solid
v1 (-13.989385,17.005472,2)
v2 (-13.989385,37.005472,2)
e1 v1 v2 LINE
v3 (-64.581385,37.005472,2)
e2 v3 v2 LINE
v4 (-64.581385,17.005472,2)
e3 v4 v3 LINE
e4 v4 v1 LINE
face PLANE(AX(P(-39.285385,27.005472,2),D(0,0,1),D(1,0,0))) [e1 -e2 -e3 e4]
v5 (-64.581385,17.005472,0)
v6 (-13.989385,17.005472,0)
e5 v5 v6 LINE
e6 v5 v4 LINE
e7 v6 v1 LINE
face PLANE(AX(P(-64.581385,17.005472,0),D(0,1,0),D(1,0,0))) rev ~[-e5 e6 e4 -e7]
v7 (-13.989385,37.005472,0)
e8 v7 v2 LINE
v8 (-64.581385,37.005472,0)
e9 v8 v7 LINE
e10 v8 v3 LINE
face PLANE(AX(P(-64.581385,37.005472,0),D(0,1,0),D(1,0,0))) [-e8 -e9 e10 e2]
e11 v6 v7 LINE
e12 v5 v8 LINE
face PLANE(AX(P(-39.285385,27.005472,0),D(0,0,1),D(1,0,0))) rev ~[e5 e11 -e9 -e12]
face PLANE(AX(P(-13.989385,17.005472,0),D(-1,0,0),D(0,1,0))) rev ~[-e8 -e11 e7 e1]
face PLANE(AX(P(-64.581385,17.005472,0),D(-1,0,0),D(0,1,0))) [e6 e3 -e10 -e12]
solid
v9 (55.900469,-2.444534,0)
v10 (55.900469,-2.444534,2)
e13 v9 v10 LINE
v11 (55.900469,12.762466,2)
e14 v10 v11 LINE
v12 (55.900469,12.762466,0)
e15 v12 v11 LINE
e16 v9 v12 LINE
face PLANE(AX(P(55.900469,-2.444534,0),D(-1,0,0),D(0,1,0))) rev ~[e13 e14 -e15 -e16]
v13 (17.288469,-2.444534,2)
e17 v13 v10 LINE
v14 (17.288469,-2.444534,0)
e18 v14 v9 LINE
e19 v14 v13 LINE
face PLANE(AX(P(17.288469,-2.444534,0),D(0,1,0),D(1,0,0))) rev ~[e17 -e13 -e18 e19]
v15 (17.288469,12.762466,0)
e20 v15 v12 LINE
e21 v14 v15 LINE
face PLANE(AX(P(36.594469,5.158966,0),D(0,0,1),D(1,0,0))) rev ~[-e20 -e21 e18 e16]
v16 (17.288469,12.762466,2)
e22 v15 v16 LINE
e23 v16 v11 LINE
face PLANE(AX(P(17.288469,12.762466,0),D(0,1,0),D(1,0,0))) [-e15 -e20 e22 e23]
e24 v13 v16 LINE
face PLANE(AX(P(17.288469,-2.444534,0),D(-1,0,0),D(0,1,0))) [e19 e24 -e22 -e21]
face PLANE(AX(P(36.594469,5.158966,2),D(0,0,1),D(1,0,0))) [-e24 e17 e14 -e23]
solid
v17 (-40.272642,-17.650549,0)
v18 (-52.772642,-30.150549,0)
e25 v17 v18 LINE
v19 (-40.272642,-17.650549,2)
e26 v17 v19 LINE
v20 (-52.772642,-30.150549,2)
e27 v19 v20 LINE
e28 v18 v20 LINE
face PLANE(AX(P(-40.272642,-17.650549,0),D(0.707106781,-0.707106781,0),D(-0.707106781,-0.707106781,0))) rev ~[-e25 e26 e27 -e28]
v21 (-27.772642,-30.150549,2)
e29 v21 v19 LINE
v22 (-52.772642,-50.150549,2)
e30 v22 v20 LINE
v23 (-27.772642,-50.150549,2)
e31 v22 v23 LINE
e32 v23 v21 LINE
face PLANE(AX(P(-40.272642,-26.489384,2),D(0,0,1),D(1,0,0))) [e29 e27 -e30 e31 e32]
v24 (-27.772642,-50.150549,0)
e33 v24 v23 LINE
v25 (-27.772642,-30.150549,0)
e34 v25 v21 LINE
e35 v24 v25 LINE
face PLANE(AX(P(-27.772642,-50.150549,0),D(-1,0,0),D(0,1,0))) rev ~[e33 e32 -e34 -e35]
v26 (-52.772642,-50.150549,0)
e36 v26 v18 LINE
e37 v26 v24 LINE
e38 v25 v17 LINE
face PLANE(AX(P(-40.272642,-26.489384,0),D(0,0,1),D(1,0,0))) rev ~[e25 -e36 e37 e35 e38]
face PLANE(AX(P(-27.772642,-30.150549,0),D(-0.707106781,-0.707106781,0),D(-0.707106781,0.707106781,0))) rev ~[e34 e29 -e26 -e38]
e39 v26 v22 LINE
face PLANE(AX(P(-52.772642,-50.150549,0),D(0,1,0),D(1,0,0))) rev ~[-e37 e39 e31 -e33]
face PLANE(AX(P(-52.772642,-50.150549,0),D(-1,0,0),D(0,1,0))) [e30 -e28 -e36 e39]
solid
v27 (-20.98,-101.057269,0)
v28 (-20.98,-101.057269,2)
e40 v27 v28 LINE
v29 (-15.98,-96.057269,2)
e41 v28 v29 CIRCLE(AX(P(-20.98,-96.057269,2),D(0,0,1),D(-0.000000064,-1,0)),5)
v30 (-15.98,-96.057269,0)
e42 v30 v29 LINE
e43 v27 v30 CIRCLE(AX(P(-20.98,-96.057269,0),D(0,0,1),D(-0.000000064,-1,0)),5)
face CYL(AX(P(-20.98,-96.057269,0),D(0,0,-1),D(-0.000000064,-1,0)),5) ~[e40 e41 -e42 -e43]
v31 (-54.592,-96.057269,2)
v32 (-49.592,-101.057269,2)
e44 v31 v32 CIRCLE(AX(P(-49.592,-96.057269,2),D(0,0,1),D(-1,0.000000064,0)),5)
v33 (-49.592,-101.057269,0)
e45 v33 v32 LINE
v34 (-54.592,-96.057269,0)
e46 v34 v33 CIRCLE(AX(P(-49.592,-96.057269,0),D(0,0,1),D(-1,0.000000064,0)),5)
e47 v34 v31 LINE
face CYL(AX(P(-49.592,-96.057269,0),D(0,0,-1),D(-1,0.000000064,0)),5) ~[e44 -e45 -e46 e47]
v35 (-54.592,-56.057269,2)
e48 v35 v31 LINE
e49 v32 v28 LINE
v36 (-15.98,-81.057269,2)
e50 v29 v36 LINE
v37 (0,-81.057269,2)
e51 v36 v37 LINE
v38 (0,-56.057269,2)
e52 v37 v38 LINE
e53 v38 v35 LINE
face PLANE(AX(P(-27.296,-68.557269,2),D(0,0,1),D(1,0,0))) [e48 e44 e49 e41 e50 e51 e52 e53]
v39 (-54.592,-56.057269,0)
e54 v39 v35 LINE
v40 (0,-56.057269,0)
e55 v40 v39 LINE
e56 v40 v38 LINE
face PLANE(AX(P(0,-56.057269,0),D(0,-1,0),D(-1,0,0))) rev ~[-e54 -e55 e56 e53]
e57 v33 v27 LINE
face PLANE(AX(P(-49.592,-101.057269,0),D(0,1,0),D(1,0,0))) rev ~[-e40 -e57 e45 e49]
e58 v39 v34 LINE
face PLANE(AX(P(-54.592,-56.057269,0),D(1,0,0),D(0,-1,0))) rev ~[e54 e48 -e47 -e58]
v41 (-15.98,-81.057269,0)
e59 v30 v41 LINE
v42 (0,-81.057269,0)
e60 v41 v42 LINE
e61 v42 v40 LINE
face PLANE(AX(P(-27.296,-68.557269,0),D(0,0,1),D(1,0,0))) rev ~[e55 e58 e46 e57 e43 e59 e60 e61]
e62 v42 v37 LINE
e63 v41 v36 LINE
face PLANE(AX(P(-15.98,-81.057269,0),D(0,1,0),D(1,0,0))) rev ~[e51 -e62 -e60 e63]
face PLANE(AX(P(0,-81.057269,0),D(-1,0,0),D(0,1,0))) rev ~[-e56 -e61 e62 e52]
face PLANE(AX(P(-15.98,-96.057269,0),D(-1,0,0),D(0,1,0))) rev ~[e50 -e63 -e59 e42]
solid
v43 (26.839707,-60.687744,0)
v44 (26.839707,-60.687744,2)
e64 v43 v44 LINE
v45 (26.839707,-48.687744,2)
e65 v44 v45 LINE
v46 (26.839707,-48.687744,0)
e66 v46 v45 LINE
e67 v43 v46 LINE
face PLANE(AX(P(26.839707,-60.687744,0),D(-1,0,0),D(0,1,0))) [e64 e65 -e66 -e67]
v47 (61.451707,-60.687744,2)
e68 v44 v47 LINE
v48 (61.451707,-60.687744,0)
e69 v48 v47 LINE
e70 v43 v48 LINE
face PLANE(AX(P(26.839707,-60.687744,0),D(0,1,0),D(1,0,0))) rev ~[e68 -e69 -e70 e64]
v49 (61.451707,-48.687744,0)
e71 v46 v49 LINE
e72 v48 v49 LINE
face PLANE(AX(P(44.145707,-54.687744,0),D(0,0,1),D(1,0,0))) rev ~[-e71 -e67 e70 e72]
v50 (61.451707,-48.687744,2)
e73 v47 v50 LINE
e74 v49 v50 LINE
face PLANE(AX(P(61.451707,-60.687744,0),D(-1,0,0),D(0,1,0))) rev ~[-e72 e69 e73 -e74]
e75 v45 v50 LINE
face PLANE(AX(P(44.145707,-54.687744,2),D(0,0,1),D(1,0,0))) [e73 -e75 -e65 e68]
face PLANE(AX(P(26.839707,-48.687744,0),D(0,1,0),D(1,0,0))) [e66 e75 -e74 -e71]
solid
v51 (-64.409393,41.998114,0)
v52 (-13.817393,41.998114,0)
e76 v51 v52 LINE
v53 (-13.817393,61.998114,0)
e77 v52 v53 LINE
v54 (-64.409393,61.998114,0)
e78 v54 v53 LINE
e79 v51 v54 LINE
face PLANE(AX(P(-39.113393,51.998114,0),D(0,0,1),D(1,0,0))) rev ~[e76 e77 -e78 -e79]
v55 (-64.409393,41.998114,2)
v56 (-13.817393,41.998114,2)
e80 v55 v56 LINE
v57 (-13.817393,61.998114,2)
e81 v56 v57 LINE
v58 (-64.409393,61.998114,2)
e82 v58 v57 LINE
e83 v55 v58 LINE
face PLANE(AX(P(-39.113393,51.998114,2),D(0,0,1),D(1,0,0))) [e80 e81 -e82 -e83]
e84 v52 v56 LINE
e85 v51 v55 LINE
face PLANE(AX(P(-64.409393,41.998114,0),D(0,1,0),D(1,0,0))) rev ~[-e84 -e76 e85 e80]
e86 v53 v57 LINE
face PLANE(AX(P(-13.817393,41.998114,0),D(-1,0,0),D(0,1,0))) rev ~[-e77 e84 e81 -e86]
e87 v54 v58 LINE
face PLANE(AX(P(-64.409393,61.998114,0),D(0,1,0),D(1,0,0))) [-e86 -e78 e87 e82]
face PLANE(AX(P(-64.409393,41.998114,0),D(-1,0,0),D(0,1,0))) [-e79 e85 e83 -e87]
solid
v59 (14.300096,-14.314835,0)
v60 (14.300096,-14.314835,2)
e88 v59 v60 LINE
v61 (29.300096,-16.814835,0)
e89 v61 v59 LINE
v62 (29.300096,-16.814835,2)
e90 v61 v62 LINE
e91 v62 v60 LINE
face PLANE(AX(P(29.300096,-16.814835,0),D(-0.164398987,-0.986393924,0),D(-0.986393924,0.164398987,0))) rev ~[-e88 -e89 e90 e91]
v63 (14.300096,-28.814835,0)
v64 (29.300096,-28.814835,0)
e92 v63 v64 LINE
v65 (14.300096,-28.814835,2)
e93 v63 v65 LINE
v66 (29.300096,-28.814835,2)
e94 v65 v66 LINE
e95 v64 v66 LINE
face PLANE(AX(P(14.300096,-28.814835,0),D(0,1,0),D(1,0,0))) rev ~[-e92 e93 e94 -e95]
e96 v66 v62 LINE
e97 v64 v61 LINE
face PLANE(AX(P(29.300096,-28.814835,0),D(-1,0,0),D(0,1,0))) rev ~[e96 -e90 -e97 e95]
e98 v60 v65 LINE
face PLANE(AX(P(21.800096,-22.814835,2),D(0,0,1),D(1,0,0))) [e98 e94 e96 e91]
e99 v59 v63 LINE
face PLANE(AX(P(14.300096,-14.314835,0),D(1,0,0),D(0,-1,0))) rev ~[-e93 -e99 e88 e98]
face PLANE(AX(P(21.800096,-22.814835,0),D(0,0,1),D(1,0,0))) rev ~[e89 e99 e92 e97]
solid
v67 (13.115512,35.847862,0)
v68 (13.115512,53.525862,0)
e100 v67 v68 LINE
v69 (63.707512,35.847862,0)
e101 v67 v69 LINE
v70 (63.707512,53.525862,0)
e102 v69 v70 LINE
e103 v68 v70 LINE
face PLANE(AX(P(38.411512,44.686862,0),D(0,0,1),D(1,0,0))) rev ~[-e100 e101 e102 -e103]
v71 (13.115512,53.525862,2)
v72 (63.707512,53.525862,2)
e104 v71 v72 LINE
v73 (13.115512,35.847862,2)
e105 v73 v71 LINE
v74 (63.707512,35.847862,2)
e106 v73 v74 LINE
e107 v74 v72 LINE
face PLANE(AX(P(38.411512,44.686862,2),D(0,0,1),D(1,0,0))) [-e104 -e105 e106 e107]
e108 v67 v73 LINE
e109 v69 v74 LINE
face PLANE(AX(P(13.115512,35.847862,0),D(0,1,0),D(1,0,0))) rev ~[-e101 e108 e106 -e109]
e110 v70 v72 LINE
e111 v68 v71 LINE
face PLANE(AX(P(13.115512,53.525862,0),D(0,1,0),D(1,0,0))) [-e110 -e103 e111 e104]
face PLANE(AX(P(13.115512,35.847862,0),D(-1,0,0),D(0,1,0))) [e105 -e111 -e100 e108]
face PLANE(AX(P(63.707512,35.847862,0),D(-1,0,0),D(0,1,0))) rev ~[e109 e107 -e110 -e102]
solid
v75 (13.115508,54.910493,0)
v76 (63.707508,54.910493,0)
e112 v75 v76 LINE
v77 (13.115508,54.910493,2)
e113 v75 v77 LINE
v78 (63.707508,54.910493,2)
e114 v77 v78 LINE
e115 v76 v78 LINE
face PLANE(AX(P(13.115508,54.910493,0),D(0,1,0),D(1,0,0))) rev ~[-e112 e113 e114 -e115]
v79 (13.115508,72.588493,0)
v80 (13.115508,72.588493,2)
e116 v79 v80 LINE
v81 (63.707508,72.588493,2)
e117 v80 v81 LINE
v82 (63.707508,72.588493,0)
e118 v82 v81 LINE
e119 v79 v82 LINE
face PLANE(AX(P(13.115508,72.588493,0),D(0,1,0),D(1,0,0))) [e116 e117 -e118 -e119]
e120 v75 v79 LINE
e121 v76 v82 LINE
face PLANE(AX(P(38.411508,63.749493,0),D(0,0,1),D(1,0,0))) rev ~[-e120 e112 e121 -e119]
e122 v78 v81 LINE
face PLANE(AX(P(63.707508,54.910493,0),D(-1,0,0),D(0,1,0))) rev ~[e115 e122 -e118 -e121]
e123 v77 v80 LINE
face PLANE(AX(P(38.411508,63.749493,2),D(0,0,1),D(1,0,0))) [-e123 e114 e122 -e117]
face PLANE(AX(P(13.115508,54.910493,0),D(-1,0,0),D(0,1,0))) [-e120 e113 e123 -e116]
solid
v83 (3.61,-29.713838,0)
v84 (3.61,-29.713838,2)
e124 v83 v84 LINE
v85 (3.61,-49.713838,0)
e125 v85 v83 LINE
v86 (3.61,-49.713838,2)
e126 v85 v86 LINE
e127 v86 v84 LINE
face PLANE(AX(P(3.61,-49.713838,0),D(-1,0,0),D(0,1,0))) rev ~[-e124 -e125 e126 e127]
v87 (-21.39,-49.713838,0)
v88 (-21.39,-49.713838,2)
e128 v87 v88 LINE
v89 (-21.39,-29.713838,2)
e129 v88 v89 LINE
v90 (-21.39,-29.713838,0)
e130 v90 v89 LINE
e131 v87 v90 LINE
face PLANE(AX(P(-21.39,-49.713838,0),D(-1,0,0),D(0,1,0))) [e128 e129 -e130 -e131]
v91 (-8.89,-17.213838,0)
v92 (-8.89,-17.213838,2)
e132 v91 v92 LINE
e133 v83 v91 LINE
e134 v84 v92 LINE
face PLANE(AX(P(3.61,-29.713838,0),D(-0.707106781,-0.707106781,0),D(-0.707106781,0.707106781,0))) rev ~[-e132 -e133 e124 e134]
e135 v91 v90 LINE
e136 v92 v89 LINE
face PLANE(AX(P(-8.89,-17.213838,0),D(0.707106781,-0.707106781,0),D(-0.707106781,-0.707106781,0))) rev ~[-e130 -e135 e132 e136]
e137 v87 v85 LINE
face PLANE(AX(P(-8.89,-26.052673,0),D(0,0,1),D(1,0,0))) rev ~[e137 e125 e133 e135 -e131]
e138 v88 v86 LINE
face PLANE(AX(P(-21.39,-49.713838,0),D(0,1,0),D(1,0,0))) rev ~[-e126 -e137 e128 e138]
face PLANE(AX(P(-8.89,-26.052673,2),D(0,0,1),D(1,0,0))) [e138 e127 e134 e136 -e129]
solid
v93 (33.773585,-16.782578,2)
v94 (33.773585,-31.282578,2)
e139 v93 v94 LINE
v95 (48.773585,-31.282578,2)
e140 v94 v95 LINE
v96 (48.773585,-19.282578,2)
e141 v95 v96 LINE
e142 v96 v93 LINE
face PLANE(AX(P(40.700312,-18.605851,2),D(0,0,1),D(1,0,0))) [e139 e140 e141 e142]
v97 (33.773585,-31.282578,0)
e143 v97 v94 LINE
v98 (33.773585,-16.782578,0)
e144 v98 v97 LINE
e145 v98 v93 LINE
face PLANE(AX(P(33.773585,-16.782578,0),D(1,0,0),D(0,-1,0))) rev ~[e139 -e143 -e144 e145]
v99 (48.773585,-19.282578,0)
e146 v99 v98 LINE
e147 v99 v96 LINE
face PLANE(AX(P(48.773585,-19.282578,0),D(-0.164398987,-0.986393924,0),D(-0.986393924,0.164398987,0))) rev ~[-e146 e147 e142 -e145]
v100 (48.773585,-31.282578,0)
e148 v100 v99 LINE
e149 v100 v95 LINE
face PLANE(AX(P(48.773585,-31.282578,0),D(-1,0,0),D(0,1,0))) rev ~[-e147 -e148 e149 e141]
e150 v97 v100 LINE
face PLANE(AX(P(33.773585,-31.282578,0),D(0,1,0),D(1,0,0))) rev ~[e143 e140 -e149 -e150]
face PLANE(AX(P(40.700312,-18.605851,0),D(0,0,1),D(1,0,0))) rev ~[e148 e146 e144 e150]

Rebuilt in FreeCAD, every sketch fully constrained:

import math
import FreeCAD as App
import Part
import Sketcher
Q = App.Units.Quantity


def add_polygon(sketch, points):
    """Adds a closed chain of lines whose ends are joined by coincident constraints."""
    first, n = sketch.GeometryCount, len(points)
    for a, b in zip(points, points[1:] + points[:1]):
        sketch.addGeometry(Part.LineSegment(App.Vector(*a, 0), App.Vector(*b, 0)), False)
    for i in range(n):
        sketch.addConstraint(Sketcher.Constraint("Coincident", first + i, 2, first + (i + 1) % n, 1))

doc = App.newDocument("Part")
body = doc.addObject("PartDesign::Body", "Body")
body.AllowCompound = True

# Sketch on XY plane
sketch1 = doc.addObject("Sketcher::SketchObject", "Sketch")
body.addObject(sketch1)
sketch1.AttachmentSupport = (doc.XY_Plane, [""])
sketch1.MapMode = "FlatFace"
add_polygon(sketch1, [(-8.9, -17.2), (-21.4, -29.7), (-21.4, -49.7), (3.6, -49.7), (3.6, -29.7)])  # lines 0-4
add_polygon(sketch1, [(13.1, 53.5), (13.1, 35.8), (63.7, 35.8), (63.7, 53.5)])  # lines 5-8
add_polygon(sketch1, [(-40.3, -17.7), (-52.8, -30.2), (-52.8, -50.2), (-27.8, -50.2), (-27.8, -30.2)])  # lines 9-13
add_polygon(sketch1, [(-64.4, 62), (-64.4, 42), (-13.8, 42), (-13.8, 62)])  # lines 14-17
add_polygon(sketch1, [(26.8, -48.7), (26.8, -60.7), (61.5, -60.7), (61.5, -48.7)])  # lines 18-21
add_polygon(sketch1, [(33.8, -16.8), (33.8, -31.3), (48.8, -31.3), (48.8, -19.3)])  # lines 22-25
add_polygon(sketch1, [(-64.6, 37), (-64.6, 17), (-14, 17), (-14, 37)])  # lines 26-29
add_polygon(sketch1, [(14.3, -28.8), (29.3, -28.8), (29.3, -16.8), (14.3, -14.3)])  # lines 30-33
add_polygon(sketch1, [(17.3, 12.8), (17.3, -2.4), (55.9, -2.4), (55.9, 12.8)])  # lines 34-37
add_polygon(sketch1, [(13.1, 72.6), (13.1, 54.9), (63.7, 54.9), (63.7, 72.6)])  # lines 38-41
sketch1.addGeometry(Part.LineSegment(App.Vector(0, -56.1, 0), App.Vector(-54.6, -56.1, 0)), False)  # 42
sketch1.addGeometry(Part.LineSegment(App.Vector(-54.6, -56.1, 0), App.Vector(-54.6, -96.1, 0)), False)  # 43
sketch1.addGeometry(Part.ArcOfCircle(Part.Circle(App.Vector(-49.6, -96.1, 0), App.Vector(0, 0, 1), 5), math.radians(180), math.radians(270)), False)  # 44
sketch1.addGeometry(Part.LineSegment(App.Vector(-49.6, -101.1, 0), App.Vector(-21, -101.1, 0)), False)  # 45
sketch1.addGeometry(Part.ArcOfCircle(Part.Circle(App.Vector(-21, -96.1, 0), App.Vector(0, 0, 1), 5), math.radians(-90), math.radians(0)), False)  # 46
sketch1.addGeometry(Part.LineSegment(App.Vector(-16, -96.1, 0), App.Vector(-16, -81.1, 0)), False)  # 47
sketch1.addGeometry(Part.LineSegment(App.Vector(-16, -81.1, 0), App.Vector(0, -81.1, 0)), False)  # 48
sketch1.addGeometry(Part.LineSegment(App.Vector(0, -81.1, 0), App.Vector(0, -56.1, 0)), False)  # 49
sketch1.addConstraint(Sketcher.Constraint("Coincident", 42, 2, 43, 1))
sketch1.addConstraint(Sketcher.Constraint("Tangent", 43, 2, 44, 1))
sketch1.addConstraint(Sketcher.Constraint("Tangent", 44, 2, 45, 1))
sketch1.addConstraint(Sketcher.Constraint("Tangent", 45, 2, 46, 1))
sketch1.addConstraint(Sketcher.Constraint("Tangent", 46, 2, 47, 1))
sketch1.addConstraint(Sketcher.Constraint("Coincident", 47, 2, 48, 1))
sketch1.addConstraint(Sketcher.Constraint("Coincident", 48, 2, 49, 1))
sketch1.addConstraint(Sketcher.Constraint("Coincident", 49, 2, 42, 1))
sketch1.addConstraint(Sketcher.Constraint("Vertical", 1))
sketch1.addConstraint(Sketcher.Constraint("Horizontal", 2))
sketch1.addConstraint(Sketcher.Constraint("Vertical", 3))
sketch1.addConstraint(Sketcher.Constraint("Vertical", 5))
sketch1.addConstraint(Sketcher.Constraint("Horizontal", 6))
sketch1.addConstraint(Sketcher.Constraint("Vertical", 7))
sketch1.addConstraint(Sketcher.Constraint("Horizontal", 8))
sketch1.addConstraint(Sketcher.Constraint("Vertical", 10))
sketch1.addConstraint(Sketcher.Constraint("Horizontal", 11))
sketch1.addConstraint(Sketcher.Constraint("Vertical", 12))
sketch1.addConstraint(Sketcher.Constraint("Vertical", 14))
sketch1.addConstraint(Sketcher.Constraint("Horizontal", 15))
sketch1.addConstraint(Sketcher.Constraint("Vertical", 16))
sketch1.addConstraint(Sketcher.Constraint("Horizontal", 17))
sketch1.addConstraint(Sketcher.Constraint("Vertical", 18))
sketch1.addConstraint(Sketcher.Constraint("Horizontal", 19))
sketch1.addConstraint(Sketcher.Constraint("Vertical", 20))
sketch1.addConstraint(Sketcher.Constraint("Horizontal", 21))
sketch1.addConstraint(Sketcher.Constraint("Vertical", 22))
sketch1.addConstraint(Sketcher.Constraint("Horizontal", 23))
sketch1.addConstraint(Sketcher.Constraint("Vertical", 24))
sketch1.addConstraint(Sketcher.Constraint("Vertical", 26))
sketch1.addConstraint(Sketcher.Constraint("Horizontal", 27))
sketch1.addConstraint(Sketcher.Constraint("Vertical", 28))
sketch1.addConstraint(Sketcher.Constraint("Horizontal", 29))
sketch1.addConstraint(Sketcher.Constraint("Horizontal", 30))
sketch1.addConstraint(Sketcher.Constraint("Vertical", 31))
sketch1.addConstraint(Sketcher.Constraint("Vertical", 33))
sketch1.addConstraint(Sketcher.Constraint("Vertical", 34))
sketch1.addConstraint(Sketcher.Constraint("Horizontal", 35))
sketch1.addConstraint(Sketcher.Constraint("Vertical", 36))
sketch1.addConstraint(Sketcher.Constraint("Horizontal", 37))
sketch1.addConstraint(Sketcher.Constraint("Vertical", 38))
sketch1.addConstraint(Sketcher.Constraint("Horizontal", 39))
sketch1.addConstraint(Sketcher.Constraint("Vertical", 40))
sketch1.addConstraint(Sketcher.Constraint("Horizontal", 41))
sketch1.addConstraint(Sketcher.Constraint("Horizontal", 42))
sketch1.addConstraint(Sketcher.Constraint("Vertical", 43))
sketch1.addConstraint(Sketcher.Constraint("Horizontal", 45))
sketch1.addConstraint(Sketcher.Constraint("Vertical", 47))
sketch1.addConstraint(Sketcher.Constraint("Horizontal", 48))
sketch1.addConstraint(Sketcher.Constraint("Vertical", 49))
sketch1.addConstraint(Sketcher.Constraint("Equal", 44, 46))
sketch1.addConstraint(Sketcher.Constraint("PointOnObject", 48, 2, -2))
sketch1.addConstraint(Sketcher.Constraint("Perpendicular", 0, 4))
sketch1.addConstraint(Sketcher.Constraint("Perpendicular", 4, 9))
sketch1.addConstraint(Sketcher.Constraint("Perpendicular", 9, 13))
sketch1.addConstraint(Sketcher.Constraint("Parallel", 25, 32))
sketch1.addConstraint(Sketcher.Constraint("Horizontal", 0, 2, 3, 2))
sketch1.addConstraint(Sketcher.Constraint("Horizontal", 9, 2, 12, 2))
sketch1.addConstraint(Sketcher.Constraint("Equal", 2, 11))
sketch1.addConstraint(Sketcher.Constraint("Equal", 8, 15))
sketch1.addConstraint(Sketcher.Constraint("Equal", 17, 27))
sketch1.addConstraint(Sketcher.Constraint("Equal", 23, 30))
sketch1.addConstraint(Sketcher.Constraint("Equal", 29, 39))
sketch1.addConstraint(Sketcher.Constraint("Equal", 3, 10))
sketch1.addConstraint(Sketcher.Constraint("Equal", 12, 14))
sketch1.addConstraint(Sketcher.Constraint("Equal", 20, 24))
sketch1.addConstraint(Sketcher.Constraint("Equal", 16, 26))
sketch1.addConstraint(Sketcher.Constraint("Equal", 24, 31))
sketch1.addConstraint(Sketcher.Constraint("Equal", 7, 38))
sketch1.addConstraint(Sketcher.Constraint("Equal", 30, 47))
sketch1.addConstraint(Sketcher.Constraint("Equal", 11, 49))
sketch1.addConstraint(Sketcher.Constraint("Equal", 0, 4))
sketch1.addConstraint(Sketcher.Constraint("Radius", 44, Q("5 mm")))
sketch1.addConstraint(Sketcher.Constraint("DistanceX", 2, 1, 2, 2, Q("25 mm")))
sketch1.addConstraint(Sketcher.Constraint("DistanceX", 23, 1, 23, 2, Q("15 mm")))
sketch1.addConstraint(Sketcher.Constraint("DistanceY", 1, 2, 1, 1, Q("20 mm")))
sketch1.addConstraint(Sketcher.Constraint("DistanceY", 18, 2, 18, 1, Q("12 mm")))
sketch1.addConstraint(Sketcher.Constraint("DistanceY", 22, 2, 22, 1, Q("14.5 mm")))
sketch1.addConstraint(Sketcher.Constraint("DistanceX", 48, 1, 48, 2, Q("15.98 mm")))
sketch1.addConstraint(Sketcher.Constraint("DistanceX", 6, 1, 6, 2, Q("50.592 mm")))
sketch1.addConstraint(Sketcher.Constraint("DistanceX", 19, 1, 19, 2, Q("34.612 mm")))
sketch1.addConstraint(Sketcher.Constraint("DistanceX", 35, 1, 35, 2, Q("38.612 mm")))
sketch1.addConstraint(Sketcher.Constraint("DistanceX", 42, 2, 42, 1, Q("54.592 mm")))
sketch1.addConstraint(Sketcher.Constraint("DistanceY", 5, 2, 5, 1, Q("17.678 mm")))
sketch1.addConstraint(Sketcher.Constraint("DistanceY", 34, 2, 34, 1, Q("15.207 mm")))
sketch1.addConstraint(Sketcher.Constraint("DistanceX", 0, 2, -1, 1, Q("21.39 mm")))
sketch1.addConstraint(Sketcher.Constraint("DistanceY", 4, 2, 5, 2, Q("53.0617 mm")))
sketch1.addConstraint(Sketcher.Constraint("DistanceY", 32, 2, 34, 2, Q("11.870301 mm")))
sketch1.addConstraint(Sketcher.Constraint("DistanceX", 16, 2, 38, 2, Q("26.932901 mm")))
sketch1.addConstraint(Sketcher.Constraint("DistanceY", 44, 3, -1, 1, Q("96.057269 mm")))
sketch1.addConstraint(Sketcher.Constraint("DistanceY", 1, 2, -1, 1, Q("49.713838 mm")))
sketch1.addConstraint(Sketcher.Constraint("DistanceX", 9, 2, -1, 1, Q("52.772642 mm")))
sketch1.addConstraint(Sketcher.Constraint("DistanceY", 9, 2, -1, 1, Q("30.150549 mm")))
sketch1.addConstraint(Sketcher.Constraint("DistanceY", 22, 2, -1, 1, Q("31.282578 mm")))
sketch1.addConstraint(Sketcher.Constraint("DistanceY", -1, 1, 28, 2, Q("37.005472 mm")))
sketch1.addConstraint(Sketcher.Constraint("DistanceX", -1, 1, 34, 2, Q("17.288469 mm")))
sketch1.addConstraint(Sketcher.Constraint("DistanceX", 4, 2, 6, 2, Q("72.597512 mm")))
sketch1.addConstraint(Sketcher.Constraint("DistanceX", 14, 2, 13, 2, Q("24.136751 mm")))
sketch1.addConstraint(Sketcher.Constraint("DistanceY", 4, 2, 15, 2, Q("59.211952 mm")))
sketch1.addConstraint(Sketcher.Constraint("DistanceX", 11, 2, 18, 2, Q("54.612349 mm")))
sketch1.addConstraint(Sketcher.Constraint("DistanceX", 30, 2, 22, 2, Q("4.473489 mm")))
sketch1.addConstraint(Sketcher.Constraint("DistanceX", 21, 2, 30, 2, Q("2.460389 mm")))
sketch1.addConstraint(Sketcher.Constraint("DistanceY", 21, 2, 30, 2, Q("19.872909 mm")))
sketch1.addConstraint(Sketcher.Constraint("DistanceY", 8, 2, 38, 2, Q("1.384631 mm")))
sketch1.addConstraint(Sketcher.Constraint("DistanceY", 18, 2, -1, 1, Q("60.687744 mm")))
sketch1.addConstraint(Sketcher.Constraint("DistanceX", 26, 2, -1, 1, Q("64.581385 mm")))
pad1 = doc.addObject("PartDesign::Pad", "Pad")
body.addObject(pad1)
pad1.Profile = sketch1
pad1.Length = 2

doc.recompute()
